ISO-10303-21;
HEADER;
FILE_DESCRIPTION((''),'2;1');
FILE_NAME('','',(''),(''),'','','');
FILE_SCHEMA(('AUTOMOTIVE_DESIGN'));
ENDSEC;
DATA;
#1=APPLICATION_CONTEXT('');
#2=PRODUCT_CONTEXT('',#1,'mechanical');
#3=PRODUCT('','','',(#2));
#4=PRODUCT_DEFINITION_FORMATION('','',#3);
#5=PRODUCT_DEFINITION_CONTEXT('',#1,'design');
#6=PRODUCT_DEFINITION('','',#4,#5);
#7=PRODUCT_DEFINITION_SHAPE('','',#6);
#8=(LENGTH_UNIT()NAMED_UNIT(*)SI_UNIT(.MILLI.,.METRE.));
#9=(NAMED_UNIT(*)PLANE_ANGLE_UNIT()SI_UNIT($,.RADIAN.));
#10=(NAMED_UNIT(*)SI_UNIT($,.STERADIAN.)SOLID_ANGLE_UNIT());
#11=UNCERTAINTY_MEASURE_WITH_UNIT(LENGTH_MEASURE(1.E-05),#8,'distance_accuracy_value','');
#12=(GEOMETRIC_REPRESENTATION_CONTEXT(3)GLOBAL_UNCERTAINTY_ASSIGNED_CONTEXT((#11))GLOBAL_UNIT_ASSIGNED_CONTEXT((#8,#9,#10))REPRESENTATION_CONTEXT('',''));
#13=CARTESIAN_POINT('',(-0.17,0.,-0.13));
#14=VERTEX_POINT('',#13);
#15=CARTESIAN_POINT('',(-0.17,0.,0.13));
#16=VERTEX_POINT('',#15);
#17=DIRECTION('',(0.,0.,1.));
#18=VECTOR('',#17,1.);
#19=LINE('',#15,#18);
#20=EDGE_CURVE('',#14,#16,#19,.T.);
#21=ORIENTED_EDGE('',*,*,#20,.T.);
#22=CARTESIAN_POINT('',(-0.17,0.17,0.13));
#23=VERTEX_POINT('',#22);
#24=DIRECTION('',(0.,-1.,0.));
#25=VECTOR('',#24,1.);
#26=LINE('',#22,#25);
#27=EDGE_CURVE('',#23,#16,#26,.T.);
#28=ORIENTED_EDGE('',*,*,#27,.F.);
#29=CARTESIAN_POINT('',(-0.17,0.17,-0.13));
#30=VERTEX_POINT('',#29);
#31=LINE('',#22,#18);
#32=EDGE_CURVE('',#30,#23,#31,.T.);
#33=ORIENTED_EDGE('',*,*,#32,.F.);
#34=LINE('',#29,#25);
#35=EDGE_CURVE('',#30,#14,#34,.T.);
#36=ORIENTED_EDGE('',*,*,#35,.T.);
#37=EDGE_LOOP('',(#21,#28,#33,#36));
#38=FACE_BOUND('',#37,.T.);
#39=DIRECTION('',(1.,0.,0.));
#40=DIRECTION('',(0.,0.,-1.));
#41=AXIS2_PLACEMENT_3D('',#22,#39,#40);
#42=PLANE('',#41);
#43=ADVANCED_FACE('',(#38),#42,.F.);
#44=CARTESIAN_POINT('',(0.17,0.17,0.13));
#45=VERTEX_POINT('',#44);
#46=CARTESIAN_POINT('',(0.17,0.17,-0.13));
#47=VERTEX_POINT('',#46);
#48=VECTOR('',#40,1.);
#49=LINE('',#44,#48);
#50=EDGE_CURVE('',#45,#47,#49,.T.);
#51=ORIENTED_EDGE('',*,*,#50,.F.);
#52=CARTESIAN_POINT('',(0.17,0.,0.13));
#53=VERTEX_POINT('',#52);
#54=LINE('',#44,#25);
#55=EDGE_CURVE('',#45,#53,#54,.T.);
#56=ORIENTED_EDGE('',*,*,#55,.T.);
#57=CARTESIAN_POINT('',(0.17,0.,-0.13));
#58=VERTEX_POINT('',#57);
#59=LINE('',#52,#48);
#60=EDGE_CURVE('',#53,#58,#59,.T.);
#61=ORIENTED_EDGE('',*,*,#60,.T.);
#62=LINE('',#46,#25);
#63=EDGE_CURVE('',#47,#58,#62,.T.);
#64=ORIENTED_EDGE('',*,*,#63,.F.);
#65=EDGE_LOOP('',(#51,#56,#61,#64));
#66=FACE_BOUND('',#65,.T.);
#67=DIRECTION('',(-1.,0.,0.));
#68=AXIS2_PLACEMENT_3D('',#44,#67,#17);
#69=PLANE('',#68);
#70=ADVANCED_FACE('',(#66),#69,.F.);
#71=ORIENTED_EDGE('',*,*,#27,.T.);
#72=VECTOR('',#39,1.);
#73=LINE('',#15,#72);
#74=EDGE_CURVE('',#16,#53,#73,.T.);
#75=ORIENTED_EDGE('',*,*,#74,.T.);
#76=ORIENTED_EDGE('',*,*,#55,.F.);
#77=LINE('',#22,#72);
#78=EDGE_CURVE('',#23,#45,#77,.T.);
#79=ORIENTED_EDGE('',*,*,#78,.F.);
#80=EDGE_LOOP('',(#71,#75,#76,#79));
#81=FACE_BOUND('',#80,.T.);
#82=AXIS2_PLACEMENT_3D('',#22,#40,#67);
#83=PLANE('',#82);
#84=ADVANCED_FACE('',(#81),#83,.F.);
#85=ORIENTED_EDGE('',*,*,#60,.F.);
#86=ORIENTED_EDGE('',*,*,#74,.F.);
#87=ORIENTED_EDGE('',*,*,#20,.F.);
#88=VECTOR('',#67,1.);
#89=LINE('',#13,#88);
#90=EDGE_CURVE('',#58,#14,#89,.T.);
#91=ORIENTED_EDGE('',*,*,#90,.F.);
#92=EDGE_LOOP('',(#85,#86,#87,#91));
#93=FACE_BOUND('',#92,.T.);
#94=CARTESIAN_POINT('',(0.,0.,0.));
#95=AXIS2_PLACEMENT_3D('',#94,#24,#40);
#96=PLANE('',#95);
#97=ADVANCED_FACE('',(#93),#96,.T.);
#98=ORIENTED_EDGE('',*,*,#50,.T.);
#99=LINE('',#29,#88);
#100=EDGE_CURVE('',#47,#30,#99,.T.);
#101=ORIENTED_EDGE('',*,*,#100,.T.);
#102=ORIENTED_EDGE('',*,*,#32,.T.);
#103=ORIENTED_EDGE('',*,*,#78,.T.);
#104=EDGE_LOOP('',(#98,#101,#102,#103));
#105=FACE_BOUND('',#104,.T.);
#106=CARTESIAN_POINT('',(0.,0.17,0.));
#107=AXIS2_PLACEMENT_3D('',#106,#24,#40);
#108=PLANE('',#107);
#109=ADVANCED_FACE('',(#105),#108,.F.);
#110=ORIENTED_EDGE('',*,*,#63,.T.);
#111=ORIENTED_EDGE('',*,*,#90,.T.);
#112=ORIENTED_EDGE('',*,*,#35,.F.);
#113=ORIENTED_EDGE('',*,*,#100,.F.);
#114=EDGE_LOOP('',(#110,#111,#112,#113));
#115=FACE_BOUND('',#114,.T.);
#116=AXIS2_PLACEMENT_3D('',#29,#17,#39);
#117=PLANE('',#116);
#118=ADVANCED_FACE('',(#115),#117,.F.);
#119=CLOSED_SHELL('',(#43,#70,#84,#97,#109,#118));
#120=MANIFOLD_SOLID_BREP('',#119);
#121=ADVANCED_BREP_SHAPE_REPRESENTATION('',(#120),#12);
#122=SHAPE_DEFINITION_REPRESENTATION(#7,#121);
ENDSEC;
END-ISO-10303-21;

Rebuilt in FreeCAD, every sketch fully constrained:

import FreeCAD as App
import Part
import Sketcher
Q = App.Units.Quantity

doc = App.newDocument("Part")
params = doc.addObject("Spreadsheet::Sheet", "Params")
for row, (alias, value) in enumerate([
    ("sketch1_width", "0.34 mm"),
    ("sketch1_height", "0.26 mm"),
    ("pad1_length", "0.17 mm"),
], start=1):
    params.set(f"A{row}", alias)
    params.set(f"B{row}", "=" + value)
    params.setAlias(f"B{row}", alias)

body = doc.addObject("PartDesign::Body", "Body")

# Sketch on XZ plane
sketch1 = body.newObject("Sketcher::SketchObject", "Sketch")
sketch1.AttachmentSupport = (doc.getObject("XZ_Plane"), [""])
sketch1.MapMode = "FlatFace"
sketch1.addGeometry([
    Part.LineSegment(App.Vector(-0.17, -0.13, 0), App.Vector(-0.17, 0.13, 0)),
    Part.LineSegment(App.Vector(-0.17, 0.13, 0), App.Vector(0.17, 0.13, 0)),
    Part.LineSegment(App.Vector(0.17, 0.13, 0), App.Vector(0.17, -0.13, 0)),
    Part.LineSegment(App.Vector(0.17, -0.13, 0), App.Vector(-0.17, -0.13, 0)),
], False)
sketch1.addConstraint([
    Sketcher.Constraint("Coincident", 0, 2, 1, 1),
    Sketcher.Constraint("Coincident", 1, 2, 2, 1),
    Sketcher.Constraint("Coincident", 2, 2, 3, 1),
    Sketcher.Constraint("Coincident", 3, 2, 0, 1),
    Sketcher.Constraint("Vertical", 0),
    Sketcher.Constraint("Horizontal", 1),
    Sketcher.Constraint("Vertical", 2),
    Sketcher.Constraint("Horizontal", 3),
    Sketcher.Constraint("Symmetric", 0, 2, 2, 2, -1, 1),
    Sketcher.Constraint("DistanceX", 1, 1, 1, 2, Q("0.34 mm")),
    Sketcher.Constraint("DistanceY", 0, 1, 0, 2, Q("0.26 mm")),
])
sketch1.setExpression("Constraints[9]", "Params.sketch1_width")
sketch1.setExpression("Constraints[10]", "Params.sketch1_height")
pad1 = body.newObject("PartDesign::Pad", "Pad")
pad1.Profile = sketch1
pad1.setExpression("Length", "Params.pad1_length")
pad1.Reversed = True

doc.recompute()
